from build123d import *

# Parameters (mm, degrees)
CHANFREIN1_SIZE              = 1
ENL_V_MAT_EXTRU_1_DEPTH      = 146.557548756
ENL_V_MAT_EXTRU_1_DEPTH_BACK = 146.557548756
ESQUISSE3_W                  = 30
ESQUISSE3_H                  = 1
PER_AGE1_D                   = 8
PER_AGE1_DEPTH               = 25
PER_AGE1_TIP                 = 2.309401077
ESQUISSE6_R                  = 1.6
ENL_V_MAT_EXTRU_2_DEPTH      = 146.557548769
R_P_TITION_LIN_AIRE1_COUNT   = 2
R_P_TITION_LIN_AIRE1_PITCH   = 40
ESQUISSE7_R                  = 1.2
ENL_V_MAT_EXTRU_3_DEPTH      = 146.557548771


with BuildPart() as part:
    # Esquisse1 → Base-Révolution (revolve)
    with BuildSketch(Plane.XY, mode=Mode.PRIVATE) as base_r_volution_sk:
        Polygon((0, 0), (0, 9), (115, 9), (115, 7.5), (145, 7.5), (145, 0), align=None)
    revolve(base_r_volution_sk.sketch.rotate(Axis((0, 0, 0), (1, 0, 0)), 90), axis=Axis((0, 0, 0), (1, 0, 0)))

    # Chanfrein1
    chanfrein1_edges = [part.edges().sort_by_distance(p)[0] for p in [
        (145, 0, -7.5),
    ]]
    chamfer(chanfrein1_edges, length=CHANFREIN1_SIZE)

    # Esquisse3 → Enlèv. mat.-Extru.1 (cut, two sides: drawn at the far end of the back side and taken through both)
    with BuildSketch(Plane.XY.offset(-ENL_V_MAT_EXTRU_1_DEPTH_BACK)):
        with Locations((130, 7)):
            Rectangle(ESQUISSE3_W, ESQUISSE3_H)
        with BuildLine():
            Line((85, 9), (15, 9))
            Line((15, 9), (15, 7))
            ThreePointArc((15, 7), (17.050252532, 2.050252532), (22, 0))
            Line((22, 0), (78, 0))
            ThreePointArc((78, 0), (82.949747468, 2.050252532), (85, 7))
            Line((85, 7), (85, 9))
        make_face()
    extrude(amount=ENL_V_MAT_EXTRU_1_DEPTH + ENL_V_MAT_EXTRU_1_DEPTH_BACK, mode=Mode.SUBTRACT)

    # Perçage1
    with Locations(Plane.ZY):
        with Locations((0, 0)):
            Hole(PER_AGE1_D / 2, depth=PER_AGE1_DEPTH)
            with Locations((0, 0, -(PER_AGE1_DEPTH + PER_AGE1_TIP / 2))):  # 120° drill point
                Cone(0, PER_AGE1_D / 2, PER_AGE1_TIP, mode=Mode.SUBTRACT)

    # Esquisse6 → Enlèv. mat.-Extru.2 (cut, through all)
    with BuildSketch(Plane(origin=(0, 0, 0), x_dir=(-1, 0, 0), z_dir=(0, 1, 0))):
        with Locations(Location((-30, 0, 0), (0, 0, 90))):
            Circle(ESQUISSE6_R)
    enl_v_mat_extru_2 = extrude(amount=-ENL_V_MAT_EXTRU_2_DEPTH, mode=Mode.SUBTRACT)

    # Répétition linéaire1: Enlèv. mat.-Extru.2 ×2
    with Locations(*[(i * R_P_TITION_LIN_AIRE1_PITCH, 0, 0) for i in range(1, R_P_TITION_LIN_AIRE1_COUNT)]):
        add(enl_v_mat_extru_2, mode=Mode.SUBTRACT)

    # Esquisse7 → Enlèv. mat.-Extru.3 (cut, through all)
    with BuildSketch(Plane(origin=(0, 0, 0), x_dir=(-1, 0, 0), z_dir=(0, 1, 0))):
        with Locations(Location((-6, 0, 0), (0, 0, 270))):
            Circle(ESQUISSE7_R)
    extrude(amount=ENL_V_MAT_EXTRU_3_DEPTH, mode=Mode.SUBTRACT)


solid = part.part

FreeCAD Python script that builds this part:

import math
import FreeCAD as App
import Part
import Sketcher


def edges_at(feature, points):
    """Names of the edges that pass closest to the given points."""
    edges = feature.Shape.Edges
    near = lambda p: min(range(len(edges)), key=lambda i: edges[i].distToShape(Part.Vertex(*p))[0])
    return sorted({f"Edge{near(p) + 1}" for p in points})


def add_polygon(sketch, points):
    """Adds a closed chain of lines whose ends are joined by coincident constraints."""
    first, n = sketch.GeometryCount, len(points)
    for a, b in zip(points, points[1:] + points[:1]):
        sketch.addGeometry(Part.LineSegment(App.Vector(*a, 0), App.Vector(*b, 0)), False)
    for i in range(n):
        sketch.addConstraint(Sketcher.Constraint("Coincident", first + i, 2, first + (i + 1) % n, 1))

doc = App.newDocument("Part")
body = doc.addObject("PartDesign::Body", "Body")

# Sketch on XY plane
sketch1 = doc.addObject("Sketcher::SketchObject", "Sketch")
body.addObject(sketch1)
sketch1.AttachmentSupport = (doc.XY_Plane, [""])
sketch1.MapMode = "FlatFace"
add_polygon(sketch1, [(0, 9), (0, 0), (145, 0), (145, 7.5), (115, 7.5), (115, 9)])  # lines 0-5
sketch1.addConstraint([
    Sketcher.Constraint("Vertical", 0),
    Sketcher.Constraint("Horizontal", 1),
    Sketcher.Constraint("Vertical", 2),
    Sketcher.Constraint("Horizontal", 3),
    Sketcher.Constraint("Vertical", 4),
    Sketcher.Constraint("Horizontal", 5),
    Sketcher.Constraint("Coincident", 0, 2, -1, 1),
    Sketcher.Constraint("DistanceX", 1, 1, 1, 2, 145.0),
    Sketcher.Constraint("DistanceX", 3, 2, 3, 1, 30.0),
    Sketcher.Constraint("DistanceY", 0, 2, 0, 1, 9.0),
    Sketcher.Constraint("DistanceY", 2, 1, 2, 2, 7.5),
])
revolution = doc.addObject("PartDesign::Revolution", "Revolution")
body.addObject(revolution)
revolution.Profile = sketch1
revolution.ReferenceAxis = (sketch1, ["H_Axis"])
revolution.Angle = 360
doc.recompute()

chamfer = doc.addObject("PartDesign::Chamfer", "Chamfer")
body.addObject(chamfer)
chamfer.Base = (revolution, edges_at(revolution, [(145, 0, -7.5)]))
chamfer.Size = 1

# Sketch on XY plane
sketch2 = doc.addObject("Sketcher::SketchObject", "Sketch001")
body.addObject(sketch2)
sketch2.AttachmentSupport = (doc.XY_Plane, [""])
sketch2.MapMode = "FlatFace"
add_polygon(sketch2, [(115, 7.5), (115, 6.5), (145, 6.5), (145, 7.5)])  # lines 0-3
sketch2.addGeometry(Part.LineSegment(App.Vector(85, 9, 0), App.Vector(15, 9, 0)), False)  # 4
sketch2.addGeometry(Part.LineSegment(App.Vector(15, 9, 0), App.Vector(15, 7, 0)), False)  # 5
sketch2.addGeometry(Part.ArcOfCircle(Part.Circle(App.Vector(22, 7, 0), App.Vector(0, 0, 1), 7), math.radians(-180), math.radians(-90)), False)  # 6
sketch2.addGeometry(Part.LineSegment(App.Vector(22, 0, 0), App.Vector(78, 0, 0)), False)  # 7
sketch2.addGeometry(Part.ArcOfCircle(Part.Circle(App.Vector(78, 7, 0), App.Vector(0, 0, 1), 7), math.radians(-90), math.radians(0)), False)  # 8
sketch2.addGeometry(Part.LineSegment(App.Vector(85, 7, 0), App.Vector(85, 9, 0)), False)  # 9
sketch2.addConstraint([
    Sketcher.Constraint("Coincident", 4, 2, 5, 1),
    Sketcher.Constraint("Tangent", 5, 2, 6, 1),
    Sketcher.Constraint("Tangent", 6, 2, 7, 1),
    Sketcher.Constraint("Tangent", 7, 2, 8, 1),
    Sketcher.Constraint("Tangent", 8, 2, 9, 1),
    Sketcher.Constraint("Coincident", 9, 2, 4, 1),
    Sketcher.Constraint("Vertical", 0),
    Sketcher.Constraint("Horizontal", 1),
    Sketcher.Constraint("Vertical", 2),
    Sketcher.Constraint("Horizontal", 3),
    Sketcher.Constraint("Horizontal", 4),
    Sketcher.Constraint("Vertical", 5),
    Sketcher.Constraint("Horizontal", 7),
    Sketcher.Constraint("Vertical", 9),
    Sketcher.Constraint("Equal", 6, 8),
    Sketcher.Constraint("PointOnObject", 6, 2, -1),
    Sketcher.Constraint("Radius", 6, 7.0),
    Sketcher.Constraint("DistanceX", 1, 1, 1, 2, 30.0),
    Sketcher.Constraint("DistanceX", 4, 2, 4, 1, 70.0),
    Sketcher.Constraint("DistanceY", 0, 2, 0, 1, 1.0),
    Sketcher.Constraint("DistanceY", 5, 2, 5, 1, 2.0),
    Sketcher.Constraint("DistanceX", -1, 1, 6, 3, 22.0),
    Sketcher.Constraint("DistanceX", -1, 1, 0, 2, 115.0),
    Sketcher.Constraint("DistanceY", -1, 1, 0, 2, 6.5),
])
pocket1 = doc.addObject("PartDesign::Pocket", "Pocket")
body.addObject(pocket1)
pocket1.Profile = sketch2
pocket1.Type = "ThroughAll"
pocket1.Midplane = True

# Sketch on YZ plane
sketch3 = doc.addObject("Sketcher::SketchObject", "Sketch002")
body.addObject(sketch3)
sketch3.AttachmentSupport = (doc.YZ_Plane, [""])
sketch3.MapMode = "FlatFace"
sketch3.addGeometry(Part.Circle(App.Vector(0, 0, 0), App.Vector(0, 0, 1), 4), False)
sketch3.addConstraint([
    Sketcher.Constraint("Coincident", 0, 3, -1, 1),
    Sketcher.Constraint("Diameter", 0, 8.0),
])
doc.recompute()
hole = doc.addObject("PartDesign::Hole", "Hole")
body.addObject(hole)
hole.Profile = sketch3
hole.ThreadType = "None"
hole.Diameter = 8
hole.DepthType = "Dimension"
hole.Depth = 25
hole.DrillPoint = "Angled"
hole.DrillPointAngle = 120
hole.Reversed = True

# Sketch on XZ plane
sketch4 = doc.addObject("Sketcher::SketchObject", "Sketch003")
body.addObject(sketch4)
sketch4.AttachmentSupport = (doc.XZ_Plane, [""])
sketch4.MapMode = "FlatFace"
sketch4.addGeometry(Part.Circle(App.Vector(30, 0, 0), App.Vector(0, 0, 1), 1.6), False)
sketch4.addConstraint([
    Sketcher.Constraint("PointOnObject", 0, 3, -1),
    Sketcher.Constraint("Diameter", 0, 3.2),
    Sketcher.Constraint("DistanceX", -1, 1, 0, 3, 30.0),
])
pocket2 = doc.addObject("PartDesign::Pocket", "Pocket001")
body.addObject(pocket2)
pocket2.Profile = sketch4
pocket2.Type = "ThroughAll"
pocket2.Reversed = True
doc.recompute()

linearpattern = doc.addObject("PartDesign::LinearPattern", "LinearPattern")
body.addObject(linearpattern)
linearpattern.Originals = [pocket2]
linearpattern.Direction = (doc.X_Axis, [""])
linearpattern.Mode = "offset"
linearpattern.Offset = 40
linearpattern.Occurrences = 2
body.Tip = linearpattern

# Sketch on XZ plane
sketch5 = doc.addObject("Sketcher::SketchObject", "Sketch004")
body.addObject(sketch5)
sketch5.AttachmentSupport = (doc.XZ_Plane, [""])
sketch5.MapMode = "FlatFace"
sketch5.addGeometry(Part.Circle(App.Vector(6, 0, 0), App.Vector(0, 0, 1), 1.2), False)
sketch5.addConstraint([
    Sketcher.Constraint("PointOnObject", 0, 3, -1),
    Sketcher.Constraint("Diameter", 0, 2.4),
    Sketcher.Constraint("DistanceX", -1, 1, 0, 3, 6.0),
])
pocket3 = doc.addObject("PartDesign::Pocket", "Pocket002")
body.addObject(pocket3)
pocket3.Profile = sketch5
pocket3.Type = "ThroughAll"

doc.recompute()
